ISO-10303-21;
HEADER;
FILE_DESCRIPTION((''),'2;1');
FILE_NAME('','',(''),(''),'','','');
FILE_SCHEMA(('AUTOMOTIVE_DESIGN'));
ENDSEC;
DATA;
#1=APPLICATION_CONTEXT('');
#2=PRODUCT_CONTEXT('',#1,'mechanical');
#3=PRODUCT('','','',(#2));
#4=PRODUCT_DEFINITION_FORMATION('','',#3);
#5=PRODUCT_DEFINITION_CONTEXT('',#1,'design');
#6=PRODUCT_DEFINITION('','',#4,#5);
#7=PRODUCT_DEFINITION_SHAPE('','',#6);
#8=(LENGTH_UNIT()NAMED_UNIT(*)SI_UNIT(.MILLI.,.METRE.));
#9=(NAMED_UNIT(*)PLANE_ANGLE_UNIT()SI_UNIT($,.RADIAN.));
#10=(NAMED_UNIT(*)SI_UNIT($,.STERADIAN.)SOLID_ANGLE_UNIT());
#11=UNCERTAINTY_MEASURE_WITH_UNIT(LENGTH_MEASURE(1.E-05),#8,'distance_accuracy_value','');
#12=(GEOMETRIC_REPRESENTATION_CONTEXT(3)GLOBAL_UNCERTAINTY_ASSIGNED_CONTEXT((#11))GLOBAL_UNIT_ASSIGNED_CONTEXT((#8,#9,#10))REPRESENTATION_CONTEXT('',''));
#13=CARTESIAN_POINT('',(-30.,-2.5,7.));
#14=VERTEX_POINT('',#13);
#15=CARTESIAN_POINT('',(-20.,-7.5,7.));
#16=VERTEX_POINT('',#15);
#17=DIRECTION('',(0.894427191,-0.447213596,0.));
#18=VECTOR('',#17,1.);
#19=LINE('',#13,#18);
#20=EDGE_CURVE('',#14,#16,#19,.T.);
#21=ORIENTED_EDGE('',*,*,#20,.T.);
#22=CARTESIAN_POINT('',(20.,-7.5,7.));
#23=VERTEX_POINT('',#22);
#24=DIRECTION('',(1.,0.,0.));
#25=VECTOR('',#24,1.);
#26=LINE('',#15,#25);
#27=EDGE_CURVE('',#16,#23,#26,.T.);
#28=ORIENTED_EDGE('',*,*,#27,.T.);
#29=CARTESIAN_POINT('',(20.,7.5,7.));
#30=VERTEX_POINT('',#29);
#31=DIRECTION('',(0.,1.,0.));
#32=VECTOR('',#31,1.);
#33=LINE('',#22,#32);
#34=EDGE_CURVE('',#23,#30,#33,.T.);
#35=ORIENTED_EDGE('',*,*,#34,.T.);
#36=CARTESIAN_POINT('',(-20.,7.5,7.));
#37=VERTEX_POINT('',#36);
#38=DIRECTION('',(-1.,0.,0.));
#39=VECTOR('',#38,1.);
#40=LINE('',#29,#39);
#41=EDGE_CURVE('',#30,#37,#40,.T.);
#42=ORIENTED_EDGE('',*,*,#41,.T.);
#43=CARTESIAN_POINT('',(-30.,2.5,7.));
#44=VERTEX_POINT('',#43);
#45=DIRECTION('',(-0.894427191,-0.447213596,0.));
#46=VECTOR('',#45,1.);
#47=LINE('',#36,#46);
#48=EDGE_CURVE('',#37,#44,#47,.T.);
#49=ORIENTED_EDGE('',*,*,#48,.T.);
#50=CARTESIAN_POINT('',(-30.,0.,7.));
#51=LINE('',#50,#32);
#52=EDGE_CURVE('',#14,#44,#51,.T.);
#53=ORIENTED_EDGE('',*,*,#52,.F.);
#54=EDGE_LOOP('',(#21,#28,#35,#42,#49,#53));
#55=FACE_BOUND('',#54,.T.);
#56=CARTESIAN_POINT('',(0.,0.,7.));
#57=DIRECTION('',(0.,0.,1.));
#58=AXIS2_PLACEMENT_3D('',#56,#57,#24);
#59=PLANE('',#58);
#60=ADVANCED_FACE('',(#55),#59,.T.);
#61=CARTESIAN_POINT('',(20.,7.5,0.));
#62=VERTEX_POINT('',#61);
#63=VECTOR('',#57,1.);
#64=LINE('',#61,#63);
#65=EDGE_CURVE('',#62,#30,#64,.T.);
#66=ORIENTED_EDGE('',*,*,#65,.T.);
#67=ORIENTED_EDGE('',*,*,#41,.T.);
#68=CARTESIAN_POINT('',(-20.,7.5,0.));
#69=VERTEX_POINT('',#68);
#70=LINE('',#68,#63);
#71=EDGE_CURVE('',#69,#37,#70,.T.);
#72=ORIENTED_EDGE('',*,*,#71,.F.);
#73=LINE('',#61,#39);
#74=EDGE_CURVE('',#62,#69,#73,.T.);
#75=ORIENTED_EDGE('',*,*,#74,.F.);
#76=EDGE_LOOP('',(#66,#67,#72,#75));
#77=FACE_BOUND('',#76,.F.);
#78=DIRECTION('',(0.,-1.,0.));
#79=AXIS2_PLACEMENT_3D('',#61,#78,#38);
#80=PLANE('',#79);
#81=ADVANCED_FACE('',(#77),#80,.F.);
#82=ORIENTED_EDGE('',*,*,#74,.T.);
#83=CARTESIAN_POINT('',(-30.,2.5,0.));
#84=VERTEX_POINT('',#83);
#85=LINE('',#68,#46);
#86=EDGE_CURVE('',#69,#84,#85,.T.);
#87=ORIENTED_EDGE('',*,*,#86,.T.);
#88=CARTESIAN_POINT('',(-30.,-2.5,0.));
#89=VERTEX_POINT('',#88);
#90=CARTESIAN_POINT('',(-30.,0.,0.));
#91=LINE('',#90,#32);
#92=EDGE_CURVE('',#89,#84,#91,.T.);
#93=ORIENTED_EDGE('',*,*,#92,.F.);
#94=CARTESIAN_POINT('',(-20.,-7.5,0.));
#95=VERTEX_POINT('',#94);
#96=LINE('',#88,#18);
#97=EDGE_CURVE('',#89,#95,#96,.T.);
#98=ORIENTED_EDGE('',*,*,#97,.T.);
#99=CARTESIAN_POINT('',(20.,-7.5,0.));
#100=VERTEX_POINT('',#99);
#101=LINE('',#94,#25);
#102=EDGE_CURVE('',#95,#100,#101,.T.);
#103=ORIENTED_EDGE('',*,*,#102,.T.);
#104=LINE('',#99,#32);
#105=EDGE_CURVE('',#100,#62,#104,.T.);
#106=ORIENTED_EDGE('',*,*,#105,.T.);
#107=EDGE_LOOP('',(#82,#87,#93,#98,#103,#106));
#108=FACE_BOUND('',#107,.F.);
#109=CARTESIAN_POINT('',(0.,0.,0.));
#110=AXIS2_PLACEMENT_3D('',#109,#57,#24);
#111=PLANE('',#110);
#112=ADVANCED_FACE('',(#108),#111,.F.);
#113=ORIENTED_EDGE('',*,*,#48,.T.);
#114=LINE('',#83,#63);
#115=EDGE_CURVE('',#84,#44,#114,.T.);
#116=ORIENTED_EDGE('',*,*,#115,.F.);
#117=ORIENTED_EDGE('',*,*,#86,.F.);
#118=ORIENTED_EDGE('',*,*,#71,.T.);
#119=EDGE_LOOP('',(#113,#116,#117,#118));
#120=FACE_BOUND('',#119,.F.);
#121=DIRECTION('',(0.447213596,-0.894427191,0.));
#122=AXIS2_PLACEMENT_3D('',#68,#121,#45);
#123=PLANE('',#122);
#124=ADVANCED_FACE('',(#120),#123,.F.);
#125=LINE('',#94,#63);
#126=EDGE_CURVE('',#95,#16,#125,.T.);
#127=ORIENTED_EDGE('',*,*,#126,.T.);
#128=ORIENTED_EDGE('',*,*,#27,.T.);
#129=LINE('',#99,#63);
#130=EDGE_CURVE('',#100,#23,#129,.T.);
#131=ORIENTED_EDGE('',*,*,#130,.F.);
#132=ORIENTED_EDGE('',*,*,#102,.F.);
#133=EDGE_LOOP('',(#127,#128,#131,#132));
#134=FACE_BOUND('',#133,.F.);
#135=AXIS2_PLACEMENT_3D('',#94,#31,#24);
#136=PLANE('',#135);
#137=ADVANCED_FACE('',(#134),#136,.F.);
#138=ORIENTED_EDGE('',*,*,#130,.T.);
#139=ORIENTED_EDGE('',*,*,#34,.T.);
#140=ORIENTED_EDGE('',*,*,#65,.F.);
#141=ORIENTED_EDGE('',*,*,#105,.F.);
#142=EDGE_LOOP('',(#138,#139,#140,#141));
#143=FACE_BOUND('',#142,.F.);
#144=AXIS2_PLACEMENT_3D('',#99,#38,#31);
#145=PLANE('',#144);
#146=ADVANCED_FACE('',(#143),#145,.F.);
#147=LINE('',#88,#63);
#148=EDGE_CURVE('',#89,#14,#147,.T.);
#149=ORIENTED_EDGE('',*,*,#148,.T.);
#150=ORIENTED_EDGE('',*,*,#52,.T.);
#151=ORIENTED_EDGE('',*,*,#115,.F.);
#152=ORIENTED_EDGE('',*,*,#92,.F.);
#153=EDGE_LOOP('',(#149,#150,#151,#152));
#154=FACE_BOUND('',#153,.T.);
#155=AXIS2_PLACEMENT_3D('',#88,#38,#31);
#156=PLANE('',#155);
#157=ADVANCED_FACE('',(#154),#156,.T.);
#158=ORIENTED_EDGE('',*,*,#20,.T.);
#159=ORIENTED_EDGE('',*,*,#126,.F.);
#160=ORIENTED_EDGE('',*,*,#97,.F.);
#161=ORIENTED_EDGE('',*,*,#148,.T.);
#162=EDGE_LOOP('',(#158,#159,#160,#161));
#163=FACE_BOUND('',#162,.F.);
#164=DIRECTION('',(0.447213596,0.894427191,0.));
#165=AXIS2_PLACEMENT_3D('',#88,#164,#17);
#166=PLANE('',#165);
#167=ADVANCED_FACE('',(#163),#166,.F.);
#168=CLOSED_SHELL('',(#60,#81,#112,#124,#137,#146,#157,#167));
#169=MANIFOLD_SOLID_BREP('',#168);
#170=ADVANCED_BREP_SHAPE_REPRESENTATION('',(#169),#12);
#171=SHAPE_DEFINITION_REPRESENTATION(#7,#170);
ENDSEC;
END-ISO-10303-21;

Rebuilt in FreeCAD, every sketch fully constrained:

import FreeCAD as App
import Part
import Sketcher
from FreeCAD import Vector
Q = App.Units.Quantity

doc = App.newDocument("Part")
body = doc.addObject("PartDesign::Body", "Body")

# Sketch on XY plane
sketch1 = doc.addObject("Sketcher::SketchObject", "Sketch")
body.addObject(sketch1)
sketch1.AttachmentSupport = (doc.XY_Plane, [""])
sketch1.MapMode = "FlatFace"
sketch1.addGeometry([
    Part.LineSegment(Vector(-20, -8, 0), Vector(20, -8, 0)),  # 0
    Part.LineSegment(Vector(20, -8, 0), Vector(20, 8, 0)),  # 1
    Part.LineSegment(Vector(20, 8, 0), Vector(-20, 8, 0)),  # 2
    Part.LineSegment(Vector(-20, 8, 0), Vector(-30, 2, 0)),  # 3
    Part.LineSegment(Vector(-30, 2, 0), Vector(-30, -2, 0)),  # 4
    Part.LineSegment(Vector(-30, -2, 0), Vector(-20, -8, 0)),  # 5
], False)
sketch1.addConstraint([
    Sketcher.Constraint("Coincident", 0, 2, 1, 1),
    Sketcher.Constraint("Coincident", 1, 2, 2, 1),
    Sketcher.Constraint("Coincident", 2, 2, 3, 1),
    Sketcher.Constraint("Coincident", 3, 2, 4, 1),
    Sketcher.Constraint("Coincident", 4, 2, 5, 1),
    Sketcher.Constraint("Coincident", 5, 2, 0, 1),
    Sketcher.Constraint("Horizontal", 0),
    Sketcher.Constraint("Vertical", 1),
    Sketcher.Constraint("Horizontal", 2),
    Sketcher.Constraint("Vertical", 4),
    Sketcher.Constraint("Symmetric", 0, 2, 2, 2, -1, 1),
    Sketcher.Constraint("Vertical", 2, 2, 5, 2),
    Sketcher.Constraint("Equal", 3, 5),
    Sketcher.Constraint("DistanceX", 0, 1, 0, 2, Q("40 mm")),
    Sketcher.Constraint("DistanceY", 1, 1, 1, 2, Q("15 mm")),
    Sketcher.Constraint("DistanceY", 4, 2, 4, 1, Q("5 mm")),
    Sketcher.Constraint("DistanceX", 3, 2, -1, 1, Q("30 mm")),
])
pad1 = doc.addObject("PartDesign::Pad", "Pad")
body.addObject(pad1)
pad1.Profile = sketch1
pad1.Length = 7

doc.recompute()
